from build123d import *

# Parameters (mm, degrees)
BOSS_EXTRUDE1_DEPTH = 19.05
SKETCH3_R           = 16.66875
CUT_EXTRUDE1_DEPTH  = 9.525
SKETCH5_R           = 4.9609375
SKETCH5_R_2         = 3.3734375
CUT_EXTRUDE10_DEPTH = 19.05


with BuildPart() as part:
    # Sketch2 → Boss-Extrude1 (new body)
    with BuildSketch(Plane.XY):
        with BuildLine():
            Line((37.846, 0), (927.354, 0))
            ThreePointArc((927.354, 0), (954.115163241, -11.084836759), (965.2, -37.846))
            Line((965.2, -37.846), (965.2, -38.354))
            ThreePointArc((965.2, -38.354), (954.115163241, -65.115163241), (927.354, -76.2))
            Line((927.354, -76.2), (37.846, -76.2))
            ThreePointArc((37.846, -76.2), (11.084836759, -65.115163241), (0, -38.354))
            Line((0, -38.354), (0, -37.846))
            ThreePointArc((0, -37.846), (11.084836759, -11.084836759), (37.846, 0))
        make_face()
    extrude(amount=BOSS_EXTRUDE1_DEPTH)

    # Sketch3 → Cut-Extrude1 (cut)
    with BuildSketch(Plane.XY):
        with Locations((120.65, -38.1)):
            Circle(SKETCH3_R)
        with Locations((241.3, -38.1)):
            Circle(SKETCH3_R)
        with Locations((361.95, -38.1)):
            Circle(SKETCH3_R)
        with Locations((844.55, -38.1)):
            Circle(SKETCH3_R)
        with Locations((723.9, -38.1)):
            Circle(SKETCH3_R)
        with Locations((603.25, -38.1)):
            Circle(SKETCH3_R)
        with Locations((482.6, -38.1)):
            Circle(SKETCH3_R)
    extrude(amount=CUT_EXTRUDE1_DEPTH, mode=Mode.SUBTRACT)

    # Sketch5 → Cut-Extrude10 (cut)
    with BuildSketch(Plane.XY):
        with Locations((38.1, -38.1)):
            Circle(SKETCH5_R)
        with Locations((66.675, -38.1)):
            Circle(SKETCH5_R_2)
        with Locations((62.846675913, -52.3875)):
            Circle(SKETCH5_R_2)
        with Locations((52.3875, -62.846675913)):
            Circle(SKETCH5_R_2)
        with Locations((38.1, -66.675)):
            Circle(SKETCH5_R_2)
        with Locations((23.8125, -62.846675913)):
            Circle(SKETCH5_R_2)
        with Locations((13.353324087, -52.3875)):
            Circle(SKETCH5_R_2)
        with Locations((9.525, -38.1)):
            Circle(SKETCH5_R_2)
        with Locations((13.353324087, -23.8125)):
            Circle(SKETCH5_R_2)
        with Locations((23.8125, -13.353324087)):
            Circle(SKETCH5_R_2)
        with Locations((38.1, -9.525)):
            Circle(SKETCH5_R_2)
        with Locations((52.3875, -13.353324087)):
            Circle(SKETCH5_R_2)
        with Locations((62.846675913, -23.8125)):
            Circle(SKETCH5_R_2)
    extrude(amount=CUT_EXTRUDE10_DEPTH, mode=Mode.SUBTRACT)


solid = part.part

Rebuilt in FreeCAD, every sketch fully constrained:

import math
import FreeCAD as App
import Part
import Sketcher
from FreeCAD import Vector
Q = App.Units.Quantity

doc = App.newDocument("Part")
params = doc.addObject("Spreadsheet::Sheet", "Params")
for row, (alias, value) in enumerate([
    ("sketch1_radius", "1.49 in"),
    ("pad1_length", "0.75 in"),
    ("sketch2_diameter", "1.3125 in"),
    ("pocket1_length", "0.375 in"),
    ("sketch3_diameter", "0.390625 in"),
    ("sketch3_diameter2", "0.265625 in"),
    ("pocket2_length", "0.75 in"),
], start=1):
    params.set(f"A{row}", alias)
    params.set(f"B{row}", "=" + value)
    params.setAlias(f"B{row}", alias)

body = doc.addObject("PartDesign::Body", "Body")

# Sketch on XY plane
sketch1 = doc.addObject("Sketcher::SketchObject", "Sketch")
body.addObject(sketch1)
sketch1.AttachmentSupport = (doc.XY_Plane, [""])
sketch1.MapMode = "FlatFace"
sketch1.addGeometry([
    Part.LineSegment(Vector(927.4, 0, 0), Vector(37.8, 0, 0)),  # 0
    Part.ArcOfCircle(Part.Circle(Vector(37.8, -37.8, 0), Vector(0, 0, 1), 37.8), math.radians(90), math.radians(180)),  # 1
    Part.LineSegment(Vector(0, -37.8, 0), Vector(0, -38.4, 0)),  # 2
    Part.ArcOfCircle(Part.Circle(Vector(37.8, -38.4, 0), Vector(0, 0, 1), 37.8), math.radians(180), math.radians(270)),  # 3
    Part.LineSegment(Vector(37.8, -76.2, 0), Vector(927.4, -76.2, 0)),  # 4
    Part.ArcOfCircle(Part.Circle(Vector(927.4, -38.4, 0), Vector(0, 0, 1), 37.8), math.radians(-90), math.radians(0)),  # 5
    Part.LineSegment(Vector(965.2, -38.4, 0), Vector(965.2, -37.8, 0)),  # 6
    Part.ArcOfCircle(Part.Circle(Vector(927.4, -37.8, 0), Vector(0, 0, 1), 37.8), math.radians(0), math.radians(90)),  # 7
], False)
sketch1.addConstraint([
    Sketcher.Constraint("Tangent", 0, 2, 1, 1),
    Sketcher.Constraint("Tangent", 1, 2, 2, 1),
    Sketcher.Constraint("Tangent", 2, 2, 3, 1),
    Sketcher.Constraint("Tangent", 3, 2, 4, 1),
    Sketcher.Constraint("Tangent", 4, 2, 5, 1),
    Sketcher.Constraint("Tangent", 5, 2, 6, 1),
    Sketcher.Constraint("Tangent", 6, 2, 7, 1),
    Sketcher.Constraint("Tangent", 7, 2, 0, 1),
    Sketcher.Constraint("Horizontal", 0),
    Sketcher.Constraint("Vertical", 2),
    Sketcher.Constraint("Horizontal", 4),
    Sketcher.Constraint("Vertical", 6),
    Sketcher.Constraint("Equal", 1, 3),
    Sketcher.Constraint("Equal", 3, 5),
    Sketcher.Constraint("Equal", 5, 7),
    Sketcher.Constraint("PointOnObject", 0, 2, -1),
    Sketcher.Constraint("PointOnObject", 1, 2, -2),
    Sketcher.Constraint("Radius", 1, Q("1.49 in")),
    Sketcher.Constraint("DistanceY", 3, 2, -1, 1, Q("3 in")),
    Sketcher.Constraint("DistanceX", -1, 1, 5, 2, Q("38 in")),
])
sketch1.setExpression("Constraints[17]", "Params.sketch1_radius")
pad1 = doc.addObject("PartDesign::Pad", "Pad")
body.addObject(pad1)
pad1.Profile = sketch1
pad1.setExpression("Length", "Params.pad1_length")

# Sketch on XY plane
sketch2 = doc.addObject("Sketcher::SketchObject", "Sketch001")
body.addObject(sketch2)
sketch2.AttachmentSupport = (doc.XY_Plane, [""])
sketch2.MapMode = "FlatFace"
sketch2.addGeometry([
    Part.Circle(Vector(121, -38, 0), Vector(0, 0, 1), 17),  # 0
    Part.Circle(Vector(241, -38, 0), Vector(0, 0, 1), 17),  # 1
    Part.Circle(Vector(362, -38, 0), Vector(0, 0, 1), 17),  # 2
    Part.Circle(Vector(845, -38, 0), Vector(0, 0, 1), 17),  # 3
    Part.Circle(Vector(724, -38, 0), Vector(0, 0, 1), 17),  # 4
    Part.Circle(Vector(603, -38, 0), Vector(0, 0, 1), 17),  # 5
    Part.Circle(Vector(483, -38, 0), Vector(0, 0, 1), 17),  # 6
], False)
sketch2.addConstraint([
    Sketcher.Constraint("Equal", 0, 1),
    Sketcher.Constraint("Equal", 1, 2),
    Sketcher.Constraint("Equal", 2, 3),
    Sketcher.Constraint("Equal", 3, 4),
    Sketcher.Constraint("Equal", 4, 5),
    Sketcher.Constraint("Equal", 5, 6),
    Sketcher.Constraint("Horizontal", 0, 3, 1, 3),
    Sketcher.Constraint("Horizontal", 1, 3, 2, 3),
    Sketcher.Constraint("Horizontal", 2, 3, 3, 3),
    Sketcher.Constraint("Horizontal", 3, 3, 4, 3),
    Sketcher.Constraint("Horizontal", 4, 3, 5, 3),
    Sketcher.Constraint("Horizontal", 5, 3, 6, 3),
    Sketcher.Constraint("Diameter", 0, Q("1.3125 in")),
    Sketcher.Constraint("DistanceX", -1, 1, 6, 3, Q("19 in")),
    Sketcher.Constraint("DistanceX", 2, 3, 3, 3, Q("19 in")),
    Sketcher.Constraint("DistanceX", 1, 3, 4, 3, Q("19 in")),
    Sketcher.Constraint("DistanceX", 0, 3, 5, 3, Q("19 in")),
    Sketcher.Constraint("DistanceY", 0, 3, -1, 1, Q("1.5 in")),
    Sketcher.Constraint("DistanceX", -1, 1, 1, 3, Q("9.5 in")),
    Sketcher.Constraint("DistanceX", 0, 3, 2, 3, Q("9.5 in")),
    Sketcher.Constraint("DistanceX", -1, 1, 0, 3, Q("4.75 in")),
])
sketch2.setExpression("Constraints[12]", "Params.sketch2_diameter")
pocket1 = doc.addObject("PartDesign::Pocket", "Pocket")
body.addObject(pocket1)
pocket1.Profile = sketch2
pocket1.setExpression("Length", "Params.pocket1_length")
pocket1.Reversed = True

# Sketch on XY plane
sketch3 = doc.addObject("Sketcher::SketchObject", "Sketch002")
body.addObject(sketch3)
sketch3.AttachmentSupport = (doc.XY_Plane, [""])
sketch3.MapMode = "FlatFace"
sketch3.addGeometry([
    Part.Circle(Vector(38.1, -38.1, 0), Vector(0, 0, 1), 5),  # 0
    Part.Circle(Vector(66.7, -38.1, 0), Vector(0, 0, 1), 3.4),  # 1
    Part.Circle(Vector(62.8, -52.4, 0), Vector(0, 0, 1), 3.4),  # 2
    Part.Circle(Vector(52.4, -62.8, 0), Vector(0, 0, 1), 3.4),  # 3
    Part.Circle(Vector(38.1, -66.7, 0), Vector(0, 0, 1), 3.4),  # 4
    Part.Circle(Vector(23.8, -62.8, 0), Vector(0, 0, 1), 3.4),  # 5
    Part.Circle(Vector(13.4, -52.4, 0), Vector(0, 0, 1), 3.4),  # 6
    Part.Circle(Vector(9.5, -38.1, 0), Vector(0, 0, 1), 3.4),  # 7
    Part.Circle(Vector(13.4, -23.8, 0), Vector(0, 0, 1), 3.4),  # 8
    Part.Circle(Vector(23.8, -13.4, 0), Vector(0, 0, 1), 3.4),  # 9
    Part.Circle(Vector(38.1, -9.5, 0), Vector(0, 0, 1), 3.4),  # 10
    Part.Circle(Vector(52.4, -13.4, 0), Vector(0, 0, 1), 3.4),  # 11
    Part.Circle(Vector(62.8, -23.8, 0), Vector(0, 0, 1), 3.4),  # 12
], False)
sketch3.addConstraint([
    Sketcher.Constraint("Equal", 1, 2),
    Sketcher.Constraint("Equal", 2, 3),
    Sketcher.Constraint("Equal", 3, 4),
    Sketcher.Constraint("Equal", 4, 5),
    Sketcher.Constraint("Equal", 5, 6),
    Sketcher.Constraint("Equal", 6, 7),
    Sketcher.Constraint("Equal", 7, 8),
    Sketcher.Constraint("Equal", 8, 9),
    Sketcher.Constraint("Equal", 9, 10),
    Sketcher.Constraint("Equal", 10, 11),
    Sketcher.Constraint("Equal", 11, 12),
    Sketcher.Constraint("Horizontal", 0, 3, 1, 3),
    Sketcher.Constraint("Horizontal", 3, 3, 5, 3),
    Sketcher.Constraint("Horizontal", 2, 3, 6, 3),
    Sketcher.Constraint("Horizontal", 1, 3, 7, 3),
    Sketcher.Constraint("Horizontal", 9, 3, 11, 3),
    Sketcher.Constraint("Horizontal", 8, 3, 12, 3),
    Sketcher.Constraint("Vertical", 0, 3, 4, 3),
    Sketcher.Constraint("Vertical", 6, 3, 8, 3),
    Sketcher.Constraint("Vertical", 5, 3, 9, 3),
    Sketcher.Constraint("Vertical", 4, 3, 10, 3),
    Sketcher.Constraint("Vertical", 3, 3, 11, 3),
    Sketcher.Constraint("Vertical", 2, 3, 12, 3),
    Sketcher.Constraint("Diameter", 0, Q("0.390625 in")),
    Sketcher.Constraint("Diameter", 1, Q("0.265625 in")),
    Sketcher.Constraint("DistanceX", -1, 1, 0, 3, Q("1.5 in")),
    Sketcher.Constraint("DistanceY", 0, 3, -1, 1, Q("1.5 in")),
    Sketcher.Constraint("DistanceX", -1, 1, 1, 3, Q("2.625 in")),
    Sketcher.Constraint("DistanceY", 2, 3, -1, 1, Q("2.0625 in")),
    Sketcher.Constraint("DistanceX", -1, 1, 3, 3, Q("2.0625 in")),
    Sketcher.Constraint("DistanceY", 4, 3, -1, 1, Q("2.625 in")),
    Sketcher.Constraint("DistanceX", -1, 1, 5, 3, Q("0.9375 in")),
    Sketcher.Constraint("DistanceX", -1, 1, 7, 3, Q("0.375 in")),
    Sketcher.Constraint("DistanceY", 8, 3, -1, 1, Q("0.9375 in")),
    Sketcher.Constraint("DistanceY", 10, 3, -1, 1, Q("0.375 in")),
    Sketcher.Constraint("DistanceX", 6, 3, 2, 3, 49.493352),
    Sketcher.Constraint("DistanceY", 5, 3, 9, 3, 49.493352),
    Sketcher.Constraint("DistanceX", -1, 1, 2, 3, 62.846676),
    Sketcher.Constraint("DistanceY", 3, 3, -1, 1, 62.846676),
])
sketch3.setExpression("Constraints[23]", "Params.sketch3_diameter")
sketch3.setExpression("Constraints[24]", "Params.sketch3_diameter2")
pocket2 = doc.addObject("PartDesign::Pocket", "Pocket001")
body.addObject(pocket2)
pocket2.Profile = sketch3
pocket2.setExpression("Length", "Params.pocket2_length")
pocket2.Reversed = True

doc.recompute()
